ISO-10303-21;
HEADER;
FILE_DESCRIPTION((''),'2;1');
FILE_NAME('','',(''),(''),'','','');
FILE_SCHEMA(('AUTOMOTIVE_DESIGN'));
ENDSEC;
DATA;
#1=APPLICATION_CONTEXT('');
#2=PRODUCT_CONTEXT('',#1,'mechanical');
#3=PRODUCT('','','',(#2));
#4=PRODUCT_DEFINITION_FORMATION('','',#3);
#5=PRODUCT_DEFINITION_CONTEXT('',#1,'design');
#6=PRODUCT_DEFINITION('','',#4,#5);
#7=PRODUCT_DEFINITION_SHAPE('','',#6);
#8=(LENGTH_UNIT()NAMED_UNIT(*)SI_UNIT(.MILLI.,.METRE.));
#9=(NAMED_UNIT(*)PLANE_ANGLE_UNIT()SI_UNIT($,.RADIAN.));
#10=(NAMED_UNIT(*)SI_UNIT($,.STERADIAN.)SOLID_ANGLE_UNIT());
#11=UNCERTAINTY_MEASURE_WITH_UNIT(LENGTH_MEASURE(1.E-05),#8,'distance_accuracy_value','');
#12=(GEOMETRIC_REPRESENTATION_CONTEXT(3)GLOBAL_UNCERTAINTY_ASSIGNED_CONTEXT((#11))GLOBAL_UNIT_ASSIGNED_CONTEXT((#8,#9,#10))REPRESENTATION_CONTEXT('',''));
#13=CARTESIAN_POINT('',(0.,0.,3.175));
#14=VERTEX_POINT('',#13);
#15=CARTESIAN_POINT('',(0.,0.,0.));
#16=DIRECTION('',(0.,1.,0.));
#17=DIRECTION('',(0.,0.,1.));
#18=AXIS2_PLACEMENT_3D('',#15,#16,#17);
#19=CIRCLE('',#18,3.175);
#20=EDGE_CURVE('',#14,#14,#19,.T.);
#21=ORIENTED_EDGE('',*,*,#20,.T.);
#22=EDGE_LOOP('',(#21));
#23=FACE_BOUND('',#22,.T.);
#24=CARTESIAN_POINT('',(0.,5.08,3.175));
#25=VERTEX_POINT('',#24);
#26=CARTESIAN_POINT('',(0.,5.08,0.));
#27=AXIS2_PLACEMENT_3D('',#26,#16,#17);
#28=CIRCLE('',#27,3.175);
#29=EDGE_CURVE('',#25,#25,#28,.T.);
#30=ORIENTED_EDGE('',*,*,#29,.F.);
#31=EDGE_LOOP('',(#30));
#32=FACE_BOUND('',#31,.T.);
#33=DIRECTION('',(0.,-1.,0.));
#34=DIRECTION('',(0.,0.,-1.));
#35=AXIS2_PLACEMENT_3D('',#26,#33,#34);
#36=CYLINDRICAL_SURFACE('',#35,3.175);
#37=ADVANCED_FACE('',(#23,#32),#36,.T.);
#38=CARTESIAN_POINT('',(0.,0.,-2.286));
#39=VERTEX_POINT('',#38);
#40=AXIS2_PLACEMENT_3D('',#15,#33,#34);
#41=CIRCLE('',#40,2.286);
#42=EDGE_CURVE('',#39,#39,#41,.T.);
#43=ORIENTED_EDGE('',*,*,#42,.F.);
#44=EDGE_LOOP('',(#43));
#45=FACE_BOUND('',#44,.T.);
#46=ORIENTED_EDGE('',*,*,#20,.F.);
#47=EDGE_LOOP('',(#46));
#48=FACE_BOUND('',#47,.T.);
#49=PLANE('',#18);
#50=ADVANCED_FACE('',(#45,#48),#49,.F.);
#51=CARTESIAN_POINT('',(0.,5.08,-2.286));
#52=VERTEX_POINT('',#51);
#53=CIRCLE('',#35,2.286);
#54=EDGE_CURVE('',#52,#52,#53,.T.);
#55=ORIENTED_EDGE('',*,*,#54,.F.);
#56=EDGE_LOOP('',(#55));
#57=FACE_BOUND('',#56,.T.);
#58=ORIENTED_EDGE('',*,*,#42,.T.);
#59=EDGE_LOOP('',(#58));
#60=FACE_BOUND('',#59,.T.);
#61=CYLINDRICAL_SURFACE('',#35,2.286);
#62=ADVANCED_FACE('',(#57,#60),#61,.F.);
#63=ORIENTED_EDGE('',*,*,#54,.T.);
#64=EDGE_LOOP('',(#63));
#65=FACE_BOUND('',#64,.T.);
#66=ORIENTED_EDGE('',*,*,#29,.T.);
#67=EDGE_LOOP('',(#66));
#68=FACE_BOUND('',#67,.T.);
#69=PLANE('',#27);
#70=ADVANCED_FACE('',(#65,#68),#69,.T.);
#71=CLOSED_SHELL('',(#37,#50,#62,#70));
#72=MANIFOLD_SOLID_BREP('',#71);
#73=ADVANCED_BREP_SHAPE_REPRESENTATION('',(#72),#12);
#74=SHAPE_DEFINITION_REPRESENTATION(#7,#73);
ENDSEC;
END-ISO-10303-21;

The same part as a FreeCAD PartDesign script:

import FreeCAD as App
import Part
import Sketcher
from FreeCAD import Vector
Q = App.Units.Quantity

doc = App.newDocument("Part")
body = doc.addObject("PartDesign::Body", "Body")

# Sketch on XZ plane
sketch1 = body.newObject("Sketcher::SketchObject", "Sketch")
sketch1.AttachmentSupport = (doc.getObject("XZ_Plane"), [""])
sketch1.MapMode = "FlatFace"
sketch1.addGeometry(Part.Circle(Vector(0, 0, 0), Vector(0, 0, 1), 3.2), False)
sketch1.addConstraint(Sketcher.Constraint("Coincident", 0, 3, -1, 1))
sketch1.addConstraint(Sketcher.Constraint("Diameter", 0, Q("0.25 in")))
pad1 = body.newObject("PartDesign::Pad", "Pad")
pad1.Profile = sketch1
pad1.Length = Q("0.2 in")
pad1.Reversed = True

# Sketch on XZ plane
sketch2 = body.newObject("Sketcher::SketchObject", "Sketch001")
sketch2.AttachmentSupport = (doc.getObject("XZ_Plane"), [""])
sketch2.MapMode = "FlatFace"
sketch2.addGeometry(Part.Circle(Vector(0, 0, 0), Vector(0, 0, 1), 2.3), False)
sketch2.addConstraint(Sketcher.Constraint("Coincident", 0, 3, -1, 1))
sketch2.addConstraint(Sketcher.Constraint("Diameter", 0, Q("0.18 in")))
pocket1 = body.newObject("PartDesign::Pocket", "Pocket")
pocket1.Profile = sketch2
pocket1.Length = Q("0.2 in")

doc.recompute()
